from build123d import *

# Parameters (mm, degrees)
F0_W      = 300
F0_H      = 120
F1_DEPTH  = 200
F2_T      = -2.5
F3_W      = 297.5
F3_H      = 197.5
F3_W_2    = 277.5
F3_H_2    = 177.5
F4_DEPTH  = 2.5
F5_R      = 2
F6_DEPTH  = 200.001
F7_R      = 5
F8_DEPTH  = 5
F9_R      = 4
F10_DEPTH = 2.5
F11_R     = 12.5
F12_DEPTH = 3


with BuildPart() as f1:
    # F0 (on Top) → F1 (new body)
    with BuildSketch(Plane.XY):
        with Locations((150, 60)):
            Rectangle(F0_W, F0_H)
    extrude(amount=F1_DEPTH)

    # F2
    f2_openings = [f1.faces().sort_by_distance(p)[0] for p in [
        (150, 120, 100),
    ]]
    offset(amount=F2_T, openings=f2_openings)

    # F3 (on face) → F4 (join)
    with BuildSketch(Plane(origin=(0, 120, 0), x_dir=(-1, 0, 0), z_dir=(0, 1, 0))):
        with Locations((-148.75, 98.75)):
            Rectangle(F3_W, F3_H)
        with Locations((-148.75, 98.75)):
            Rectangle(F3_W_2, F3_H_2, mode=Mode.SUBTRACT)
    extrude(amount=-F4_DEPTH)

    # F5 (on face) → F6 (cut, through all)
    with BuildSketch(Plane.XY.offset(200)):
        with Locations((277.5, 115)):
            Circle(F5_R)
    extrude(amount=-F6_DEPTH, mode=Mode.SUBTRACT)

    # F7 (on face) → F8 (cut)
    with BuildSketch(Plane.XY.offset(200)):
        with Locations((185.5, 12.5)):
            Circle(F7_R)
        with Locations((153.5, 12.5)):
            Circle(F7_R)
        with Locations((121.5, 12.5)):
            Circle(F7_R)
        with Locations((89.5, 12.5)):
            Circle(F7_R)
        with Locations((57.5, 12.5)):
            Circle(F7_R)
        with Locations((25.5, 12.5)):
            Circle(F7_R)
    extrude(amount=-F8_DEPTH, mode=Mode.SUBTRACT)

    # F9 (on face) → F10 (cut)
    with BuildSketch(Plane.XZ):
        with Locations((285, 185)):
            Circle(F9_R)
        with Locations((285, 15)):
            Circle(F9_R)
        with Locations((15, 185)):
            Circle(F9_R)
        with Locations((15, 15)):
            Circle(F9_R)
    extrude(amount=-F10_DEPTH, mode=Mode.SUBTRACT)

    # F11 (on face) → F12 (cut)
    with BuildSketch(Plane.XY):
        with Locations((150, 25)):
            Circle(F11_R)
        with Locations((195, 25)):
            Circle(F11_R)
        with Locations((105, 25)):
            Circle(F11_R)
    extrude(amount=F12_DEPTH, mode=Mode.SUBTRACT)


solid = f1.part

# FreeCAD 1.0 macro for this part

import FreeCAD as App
import Part
import Sketcher
Q = App.Units.Quantity


def faces_at(feature, points):
    """Names of the faces that lie closest to the given points."""
    faces = feature.Shape.Faces
    near = lambda p: min(range(len(faces)), key=lambda i: faces[i].distToShape(Part.Vertex(*p))[0])
    return sorted({f"Face{near(p) + 1}" for p in points})


def add_polygon(sketch, points):
    """Adds a closed chain of lines whose ends are joined by coincident constraints."""
    first, n = sketch.GeometryCount, len(points)
    for a, b in zip(points, points[1:] + points[:1]):
        sketch.addGeometry(Part.LineSegment(App.Vector(*a, 0), App.Vector(*b, 0)), False)
    for i in range(n):
        sketch.addConstraint(Sketcher.Constraint("Coincident", first + i, 2, first + (i + 1) % n, 1))

doc = App.newDocument("Part")
body = doc.addObject("PartDesign::Body", "Body")

sketch1 = doc.addObject("Sketcher::SketchObject", "Sketch")
body.addObject(sketch1)
sketch1.AttachmentSupport = (doc.XY_Plane, [""])
sketch1.MapMode = "FlatFace"
add_polygon(sketch1, [(0, 120), (0, 0), (300, 0), (300, 120)])
sketch1.addConstraint(Sketcher.Constraint("Vertical", 0))
sketch1.addConstraint(Sketcher.Constraint("Horizontal", 1))
sketch1.addConstraint(Sketcher.Constraint("Vertical", 2))
sketch1.addConstraint(Sketcher.Constraint("Horizontal", 3))
sketch1.addConstraint(Sketcher.Constraint("Coincident", 0, 2, -1, 1))
sketch1.addConstraint(Sketcher.Constraint("DistanceX", 1, 1, 1, 2, Q("300 mm")))
sketch1.addConstraint(Sketcher.Constraint("DistanceY", 0, 2, 0, 1, Q("120 mm")))
pad1 = doc.addObject("PartDesign::Pad", "Pad")
body.addObject(pad1)
pad1.Profile = sketch1
pad1.Length = 200
doc.recompute()

thickness = doc.addObject("PartDesign::Thickness", "Thickness")
body.addObject(thickness)
thickness.Base = (pad1, faces_at(pad1, [(150, 120, 100)]))
thickness.Value = 2.5
thickness.Reversed = True
thickness.Join = "Arc"

sketch2 = doc.addObject("Sketcher::SketchObject", "Sketch001")
body.addObject(sketch2)
sketch2.AttachmentSupport = (doc.XZ_Plane, [""])
sketch2.MapMode = "FlatFace"
sketch2.AttachmentOffset = App.Placement(App.Vector(0, 0, -120), App.Rotation())
add_polygon(sketch2, [(298, 198), (298, 0), (0, 0), (0, 198)])
add_polygon(sketch2, [(10, 10), (288, 10), (288, 188), (10, 188)])
sketch2.addConstraint(Sketcher.Constraint("Vertical", 0))
sketch2.addConstraint(Sketcher.Constraint("Horizontal", 1))
sketch2.addConstraint(Sketcher.Constraint("Vertical", 2))
sketch2.addConstraint(Sketcher.Constraint("Horizontal", 3))
sketch2.addConstraint(Sketcher.Constraint("Horizontal", 4))
sketch2.addConstraint(Sketcher.Constraint("Vertical", 5))
sketch2.addConstraint(Sketcher.Constraint("Horizontal", 6))
sketch2.addConstraint(Sketcher.Constraint("Vertical", 7))
sketch2.addConstraint(Sketcher.Constraint("Coincident", 1, 2, -1, 1))
sketch2.addConstraint(Sketcher.Constraint("DistanceX", 1, 2, 1, 1, Q("297.5 mm")))
sketch2.addConstraint(Sketcher.Constraint("DistanceX", 4, 1, 4, 2, Q("277.5 mm")))
sketch2.addConstraint(Sketcher.Constraint("DistanceY", 0, 2, 0, 1, Q("197.5 mm")))
sketch2.addConstraint(Sketcher.Constraint("DistanceY", 5, 1, 5, 2, Q("177.5 mm")))
sketch2.addConstraint(Sketcher.Constraint("DistanceY", -1, 1, 4, 2, Q("10 mm")))
sketch2.addConstraint(Sketcher.Constraint("DistanceX", -1, 1, 6, 2, Q("10 mm")))
pad2 = doc.addObject("PartDesign::Pad", "Pad001")
body.addObject(pad2)
pad2.Profile = sketch2
pad2.Length = 2.5

sketch3 = doc.addObject("Sketcher::SketchObject", "Sketch002")
body.addObject(sketch3)
sketch3.AttachmentSupport = (doc.XY_Plane, [""])
sketch3.MapMode = "FlatFace"
sketch3.AttachmentOffset = App.Placement(App.Vector(0, 0, 200), App.Rotation())
sketch3.addGeometry(Part.Circle(App.Vector(277.5, 115, 0), App.Vector(0, 0, 1), 2), False)
sketch3.addConstraint(Sketcher.Constraint("Diameter", 0, Q("4 mm")))
sketch3.addConstraint(Sketcher.Constraint("DistanceY", -1, 1, 0, 3, Q("115 mm")))
sketch3.addConstraint(Sketcher.Constraint("DistanceX", -1, 1, 0, 3, Q("277.5 mm")))
pocket1 = doc.addObject("PartDesign::Pocket", "Pocket")
body.addObject(pocket1)
pocket1.Profile = sketch3
pocket1.Type = "ThroughAll"

sketch4 = doc.addObject("Sketcher::SketchObject", "Sketch003")
body.addObject(sketch4)
sketch4.AttachmentSupport = (doc.XY_Plane, [""])
sketch4.MapMode = "FlatFace"
sketch4.AttachmentOffset = App.Placement(App.Vector(0, 0, 200), App.Rotation())
sketch4.addGeometry(Part.Circle(App.Vector(186, 12, 0), App.Vector(0, 0, 1), 5), False)
sketch4.addGeometry(Part.Circle(App.Vector(154, 12, 0), App.Vector(0, 0, 1), 5), False)
sketch4.addGeometry(Part.Circle(App.Vector(122, 12, 0), App.Vector(0, 0, 1), 5), False)
sketch4.addGeometry(Part.Circle(App.Vector(90, 12, 0), App.Vector(0, 0, 1), 5), False)
sketch4.addGeometry(Part.Circle(App.Vector(58, 12, 0), App.Vector(0, 0, 1), 5), False)
sketch4.addGeometry(Part.Circle(App.Vector(26, 12, 0), App.Vector(0, 0, 1), 5), False)
sketch4.addConstraint(Sketcher.Constraint("Equal", 0, 1))
sketch4.addConstraint(Sketcher.Constraint("Equal", 1, 2))
sketch4.addConstraint(Sketcher.Constraint("Equal", 2, 3))
sketch4.addConstraint(Sketcher.Constraint("Equal", 3, 4))
sketch4.addConstraint(Sketcher.Constraint("Equal", 4, 5))
sketch4.addConstraint(Sketcher.Constraint("Horizontal", 0, 3, 1, 3))
sketch4.addConstraint(Sketcher.Constraint("Horizontal", 1, 3, 2, 3))
sketch4.addConstraint(Sketcher.Constraint("Horizontal", 2, 3, 3, 3))
sketch4.addConstraint(Sketcher.Constraint("Horizontal", 3, 3, 4, 3))
sketch4.addConstraint(Sketcher.Constraint("Horizontal", 4, 3, 5, 3))
sketch4.addConstraint(Sketcher.Constraint("Diameter", 0, Q("10 mm")))
sketch4.addConstraint(Sketcher.Constraint("DistanceX", 1, 3, 0, 3, Q("32 mm")))
sketch4.addConstraint(Sketcher.Constraint("DistanceX", 2, 3, 1, 3, Q("32 mm")))
sketch4.addConstraint(Sketcher.Constraint("DistanceX", 3, 3, 2, 3, Q("32 mm")))
sketch4.addConstraint(Sketcher.Constraint("DistanceX", 4, 3, 3, 3, Q("32 mm")))
sketch4.addConstraint(Sketcher.Constraint("DistanceX", 5, 3, 4, 3, Q("32 mm")))
sketch4.addConstraint(Sketcher.Constraint("DistanceX", -1, 1, 0, 3, Q("185.5 mm")))
sketch4.addConstraint(Sketcher.Constraint("DistanceY", -1, 1, 0, 3, Q("12.5 mm")))
pocket2 = doc.addObject("PartDesign::Pocket", "Pocket001")
body.addObject(pocket2)
pocket2.Profile = sketch4
pocket2.Length = 5

sketch5 = doc.addObject("Sketcher::SketchObject", "Sketch004")
body.addObject(sketch5)
sketch5.AttachmentSupport = (doc.XZ_Plane, [""])
sketch5.MapMode = "FlatFace"
sketch5.addGeometry(Part.Circle(App.Vector(285, 185, 0), App.Vector(0, 0, 1), 4), False)
sketch5.addGeometry(Part.Circle(App.Vector(285, 15, 0), App.Vector(0, 0, 1), 4), False)
sketch5.addGeometry(Part.Circle(App.Vector(15, 185, 0), App.Vector(0, 0, 1), 4), False)
sketch5.addGeometry(Part.Circle(App.Vector(15, 15, 0), App.Vector(0, 0, 1), 4), False)
sketch5.addConstraint(Sketcher.Constraint("Equal", 0, 1))
sketch5.addConstraint(Sketcher.Constraint("Equal", 1, 2))
sketch5.addConstraint(Sketcher.Constraint("Equal", 2, 3))
sketch5.addConstraint(Sketcher.Constraint("Horizontal", 0, 3, 2, 3))
sketch5.addConstraint(Sketcher.Constraint("Horizontal", 1, 3, 3, 3))
sketch5.addConstraint(Sketcher.Constraint("Vertical", 0, 3, 1, 3))
sketch5.addConstraint(Sketcher.Constraint("Vertical", 2, 3, 3, 3))
sketch5.addConstraint(Sketcher.Constraint("Diameter", 0, Q("8 mm")))
sketch5.addConstraint(Sketcher.Constraint("DistanceX", -1, 1, 0, 3, Q("285 mm")))
sketch5.addConstraint(Sketcher.Constraint("DistanceY", -1, 1, 0, 3, Q("185 mm")))
sketch5.addConstraint(Sketcher.Constraint("DistanceY", -1, 1, 1, 3, Q("15 mm")))
sketch5.addConstraint(Sketcher.Constraint("DistanceX", -1, 1, 2, 3, Q("15 mm")))
pocket3 = doc.addObject("PartDesign::Pocket", "Pocket002")
body.addObject(pocket3)
pocket3.Profile = sketch5
pocket3.Length = 2.5

sketch6 = doc.addObject("Sketcher::SketchObject", "Sketch005")
body.addObject(sketch6)
sketch6.AttachmentSupport = (doc.XY_Plane, [""])
sketch6.MapMode = "FlatFace"
sketch6.addGeometry(Part.Circle(App.Vector(150, 25, 0), App.Vector(0, 0, 1), 12), False)
sketch6.addGeometry(Part.Circle(App.Vector(195, 25, 0), App.Vector(0, 0, 1), 12), False)
sketch6.addGeometry(Part.Circle(App.Vector(105, 25, 0), App.Vector(0, 0, 1), 12), False)
sketch6.addConstraint(Sketcher.Constraint("Equal", 0, 1))
sketch6.addConstraint(Sketcher.Constraint("Equal", 1, 2))
sketch6.addConstraint(Sketcher.Constraint("Horizontal", 0, 3, 1, 3))
sketch6.addConstraint(Sketcher.Constraint("Horizontal", 1, 3, 2, 3))
sketch6.addConstraint(Sketcher.Constraint("Diameter", 0, Q("25 mm")))
sketch6.addConstraint(Sketcher.Constraint("DistanceX", -1, 1, 0, 3, Q("150 mm")))
sketch6.addConstraint(Sketcher.Constraint("DistanceY", -1, 1, 0, 3, Q("25 mm")))
sketch6.addConstraint(Sketcher.Constraint("DistanceX", -1, 1, 1, 3, Q("195 mm")))
sketch6.addConstraint(Sketcher.Constraint("DistanceX", -1, 1, 2, 3, Q("105 mm")))
pocket4 = doc.addObject("PartDesign::Pocket", "Pocket003")
body.addObject(pocket4)
pocket4.Profile = sketch6
pocket4.Length = 3
pocket4.Reversed = True

doc.recompute()
